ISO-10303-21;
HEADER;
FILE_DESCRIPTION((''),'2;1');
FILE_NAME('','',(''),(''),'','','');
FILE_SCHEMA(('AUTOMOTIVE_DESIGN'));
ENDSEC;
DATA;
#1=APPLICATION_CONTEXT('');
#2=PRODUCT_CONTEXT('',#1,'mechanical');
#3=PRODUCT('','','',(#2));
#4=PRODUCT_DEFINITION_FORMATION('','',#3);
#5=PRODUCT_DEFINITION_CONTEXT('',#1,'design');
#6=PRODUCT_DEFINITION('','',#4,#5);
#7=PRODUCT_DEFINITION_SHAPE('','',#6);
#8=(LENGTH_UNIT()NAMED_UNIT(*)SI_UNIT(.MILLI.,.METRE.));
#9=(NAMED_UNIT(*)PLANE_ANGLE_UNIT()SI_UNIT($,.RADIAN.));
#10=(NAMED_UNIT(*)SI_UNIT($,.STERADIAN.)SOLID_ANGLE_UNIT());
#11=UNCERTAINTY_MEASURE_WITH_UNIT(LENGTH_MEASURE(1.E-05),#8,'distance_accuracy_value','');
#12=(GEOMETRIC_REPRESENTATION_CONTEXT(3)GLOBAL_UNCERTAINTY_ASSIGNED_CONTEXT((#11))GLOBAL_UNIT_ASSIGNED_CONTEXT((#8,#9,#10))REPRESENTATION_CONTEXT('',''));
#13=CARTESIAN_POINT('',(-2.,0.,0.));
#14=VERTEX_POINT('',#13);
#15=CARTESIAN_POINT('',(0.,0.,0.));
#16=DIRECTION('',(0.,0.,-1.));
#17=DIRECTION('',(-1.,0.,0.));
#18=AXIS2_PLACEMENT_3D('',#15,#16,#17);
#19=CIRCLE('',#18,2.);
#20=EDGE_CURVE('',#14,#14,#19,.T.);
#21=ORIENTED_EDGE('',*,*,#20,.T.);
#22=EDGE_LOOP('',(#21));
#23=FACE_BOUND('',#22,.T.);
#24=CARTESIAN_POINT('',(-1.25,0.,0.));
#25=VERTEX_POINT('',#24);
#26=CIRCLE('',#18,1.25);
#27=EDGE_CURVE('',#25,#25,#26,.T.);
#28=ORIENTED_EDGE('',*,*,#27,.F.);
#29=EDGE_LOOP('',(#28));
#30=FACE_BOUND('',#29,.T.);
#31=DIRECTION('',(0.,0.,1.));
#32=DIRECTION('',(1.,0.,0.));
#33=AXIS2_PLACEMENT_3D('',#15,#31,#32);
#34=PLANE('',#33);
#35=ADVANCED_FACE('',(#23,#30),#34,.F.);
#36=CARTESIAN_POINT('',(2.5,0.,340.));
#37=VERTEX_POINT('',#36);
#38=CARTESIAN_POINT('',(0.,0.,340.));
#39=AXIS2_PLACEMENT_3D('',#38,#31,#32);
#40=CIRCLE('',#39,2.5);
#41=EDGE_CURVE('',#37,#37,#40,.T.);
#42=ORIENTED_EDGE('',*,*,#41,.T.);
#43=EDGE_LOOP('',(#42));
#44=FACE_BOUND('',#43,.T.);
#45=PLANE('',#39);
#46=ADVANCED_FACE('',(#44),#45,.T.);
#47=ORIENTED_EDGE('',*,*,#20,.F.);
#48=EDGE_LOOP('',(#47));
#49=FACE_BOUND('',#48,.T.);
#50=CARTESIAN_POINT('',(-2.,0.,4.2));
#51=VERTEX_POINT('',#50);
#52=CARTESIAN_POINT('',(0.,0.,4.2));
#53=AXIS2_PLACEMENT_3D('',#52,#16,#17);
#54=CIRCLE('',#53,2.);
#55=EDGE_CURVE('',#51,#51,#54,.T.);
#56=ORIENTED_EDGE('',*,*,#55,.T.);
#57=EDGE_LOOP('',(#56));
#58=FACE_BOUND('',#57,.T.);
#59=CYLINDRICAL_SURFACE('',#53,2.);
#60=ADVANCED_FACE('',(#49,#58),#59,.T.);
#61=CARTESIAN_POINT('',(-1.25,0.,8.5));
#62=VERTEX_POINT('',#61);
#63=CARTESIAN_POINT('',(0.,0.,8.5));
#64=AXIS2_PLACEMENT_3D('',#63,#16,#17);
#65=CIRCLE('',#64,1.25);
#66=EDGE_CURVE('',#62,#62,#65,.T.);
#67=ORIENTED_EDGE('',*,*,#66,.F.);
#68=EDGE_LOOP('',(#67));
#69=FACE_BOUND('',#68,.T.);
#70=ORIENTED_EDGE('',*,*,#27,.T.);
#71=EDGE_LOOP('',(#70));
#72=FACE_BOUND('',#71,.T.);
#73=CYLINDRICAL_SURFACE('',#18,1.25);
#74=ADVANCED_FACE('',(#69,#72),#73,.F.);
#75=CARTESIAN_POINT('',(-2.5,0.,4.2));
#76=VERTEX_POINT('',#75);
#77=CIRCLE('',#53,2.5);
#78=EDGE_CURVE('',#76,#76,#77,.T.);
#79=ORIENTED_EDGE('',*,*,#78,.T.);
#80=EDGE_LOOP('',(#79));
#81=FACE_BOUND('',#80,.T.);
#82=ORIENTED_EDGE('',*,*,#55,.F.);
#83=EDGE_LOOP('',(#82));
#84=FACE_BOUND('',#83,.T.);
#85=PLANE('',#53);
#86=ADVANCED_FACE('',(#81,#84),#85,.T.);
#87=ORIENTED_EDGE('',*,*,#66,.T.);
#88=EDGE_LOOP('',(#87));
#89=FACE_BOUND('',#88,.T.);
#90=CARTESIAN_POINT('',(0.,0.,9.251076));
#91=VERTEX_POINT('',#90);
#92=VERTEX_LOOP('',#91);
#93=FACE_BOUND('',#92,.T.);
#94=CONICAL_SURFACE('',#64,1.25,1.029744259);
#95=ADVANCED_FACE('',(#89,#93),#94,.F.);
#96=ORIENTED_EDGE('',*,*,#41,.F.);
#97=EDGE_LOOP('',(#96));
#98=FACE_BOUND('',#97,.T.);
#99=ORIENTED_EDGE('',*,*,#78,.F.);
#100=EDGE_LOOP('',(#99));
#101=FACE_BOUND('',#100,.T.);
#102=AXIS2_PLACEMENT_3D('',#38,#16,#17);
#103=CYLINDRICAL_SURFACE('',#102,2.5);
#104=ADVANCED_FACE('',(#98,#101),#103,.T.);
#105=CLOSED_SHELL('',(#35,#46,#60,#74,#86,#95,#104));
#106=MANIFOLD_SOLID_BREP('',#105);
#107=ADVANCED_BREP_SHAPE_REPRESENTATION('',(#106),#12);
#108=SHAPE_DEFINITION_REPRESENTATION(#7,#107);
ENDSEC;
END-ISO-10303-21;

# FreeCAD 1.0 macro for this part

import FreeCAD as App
import Part
import Sketcher
from FreeCAD import Vector

doc = App.newDocument("Part")
body = doc.addObject("PartDesign::Body", "Body")

sketch1 = body.newObject("Sketcher::SketchObject", "Sketch")
sketch1.AttachmentSupport = (doc.getObject("XY_Plane"), [""])
sketch1.MapMode = "FlatFace"
sketch1.addGeometry(Part.Circle(Vector(0, 0, 0), Vector(0, 0, 1), 2.5), False)
sketch1.addConstraint([
    Sketcher.Constraint("Coincident", 0, 3, -1, 1),
    Sketcher.Constraint("Diameter", 0, 5.0),
])
pad1 = body.newObject("PartDesign::Pad", "Pad")
pad1.Profile = sketch1
pad1.Length = 340

sketch2 = body.newObject("Sketcher::SketchObject", "Sketch001")
sketch2.AttachmentSupport = (doc.getObject("XY_Plane"), [""])
sketch2.MapMode = "FlatFace"
sketch2.addGeometry([
    Part.LineSegment(Vector(37.5, 37.5, 0), Vector(37.5, -37.5, 0)),
    Part.LineSegment(Vector(37.5, -37.5, 0), Vector(-37.5, -37.5, 0)),
    Part.LineSegment(Vector(-37.5, -37.5, 0), Vector(-37.5, 37.5, 0)),
    Part.LineSegment(Vector(-37.5, 37.5, 0), Vector(37.5, 37.5, 0)),
    Part.Circle(Vector(0, 0, 0), Vector(0, 0, 1), 2),
], False)
sketch2.addConstraint([
    Sketcher.Constraint("Coincident", 0, 2, 1, 1),
    Sketcher.Constraint("Coincident", 1, 2, 2, 1),
    Sketcher.Constraint("Coincident", 2, 2, 3, 1),
    Sketcher.Constraint("Coincident", 3, 2, 0, 1),
    Sketcher.Constraint("Vertical", 0),
    Sketcher.Constraint("Horizontal", 1),
    Sketcher.Constraint("Vertical", 2),
    Sketcher.Constraint("Horizontal", 3),
    Sketcher.Constraint("Coincident", 4, 3, -1, 1),
    Sketcher.Constraint("Symmetric", 0, 2, 2, 2, -1, 1),
    Sketcher.Constraint("Equal", 3, 0),
    Sketcher.Constraint("Diameter", 4, 4.0),
    Sketcher.Constraint("DistanceX", 1, 2, 1, 1, 75.014),
])
pocket1 = body.newObject("PartDesign::Pocket", "Pocket")
pocket1.Profile = sketch2
pocket1.Length = 4.2
pocket1.Reversed = True

sketch3 = body.newObject("Sketcher::SketchObject", "Sketch002")
sketch3.AttachmentSupport = (doc.getObject("XY_Plane"), [""])
sketch3.MapMode = "FlatFace"
sketch3.addGeometry(Part.Circle(Vector(0, 0, 0), Vector(0, 0, 1), 1.2), False)
sketch3.addConstraint([
    Sketcher.Constraint("Coincident", 0, 3, -1, 1),
    Sketcher.Constraint("Diameter", 0, 2.5),
])
doc.recompute()
hole = body.newObject("PartDesign::Hole", "Hole")
hole.Profile = sketch3
hole.ThreadType = "None"
hole.Diameter = 2.5
hole.DepthType = "Dimension"
hole.Depth = 8.5
hole.DrillPoint = "Angled"
hole.DrillPointAngle = 118
hole.Reversed = True

doc.recompute()
